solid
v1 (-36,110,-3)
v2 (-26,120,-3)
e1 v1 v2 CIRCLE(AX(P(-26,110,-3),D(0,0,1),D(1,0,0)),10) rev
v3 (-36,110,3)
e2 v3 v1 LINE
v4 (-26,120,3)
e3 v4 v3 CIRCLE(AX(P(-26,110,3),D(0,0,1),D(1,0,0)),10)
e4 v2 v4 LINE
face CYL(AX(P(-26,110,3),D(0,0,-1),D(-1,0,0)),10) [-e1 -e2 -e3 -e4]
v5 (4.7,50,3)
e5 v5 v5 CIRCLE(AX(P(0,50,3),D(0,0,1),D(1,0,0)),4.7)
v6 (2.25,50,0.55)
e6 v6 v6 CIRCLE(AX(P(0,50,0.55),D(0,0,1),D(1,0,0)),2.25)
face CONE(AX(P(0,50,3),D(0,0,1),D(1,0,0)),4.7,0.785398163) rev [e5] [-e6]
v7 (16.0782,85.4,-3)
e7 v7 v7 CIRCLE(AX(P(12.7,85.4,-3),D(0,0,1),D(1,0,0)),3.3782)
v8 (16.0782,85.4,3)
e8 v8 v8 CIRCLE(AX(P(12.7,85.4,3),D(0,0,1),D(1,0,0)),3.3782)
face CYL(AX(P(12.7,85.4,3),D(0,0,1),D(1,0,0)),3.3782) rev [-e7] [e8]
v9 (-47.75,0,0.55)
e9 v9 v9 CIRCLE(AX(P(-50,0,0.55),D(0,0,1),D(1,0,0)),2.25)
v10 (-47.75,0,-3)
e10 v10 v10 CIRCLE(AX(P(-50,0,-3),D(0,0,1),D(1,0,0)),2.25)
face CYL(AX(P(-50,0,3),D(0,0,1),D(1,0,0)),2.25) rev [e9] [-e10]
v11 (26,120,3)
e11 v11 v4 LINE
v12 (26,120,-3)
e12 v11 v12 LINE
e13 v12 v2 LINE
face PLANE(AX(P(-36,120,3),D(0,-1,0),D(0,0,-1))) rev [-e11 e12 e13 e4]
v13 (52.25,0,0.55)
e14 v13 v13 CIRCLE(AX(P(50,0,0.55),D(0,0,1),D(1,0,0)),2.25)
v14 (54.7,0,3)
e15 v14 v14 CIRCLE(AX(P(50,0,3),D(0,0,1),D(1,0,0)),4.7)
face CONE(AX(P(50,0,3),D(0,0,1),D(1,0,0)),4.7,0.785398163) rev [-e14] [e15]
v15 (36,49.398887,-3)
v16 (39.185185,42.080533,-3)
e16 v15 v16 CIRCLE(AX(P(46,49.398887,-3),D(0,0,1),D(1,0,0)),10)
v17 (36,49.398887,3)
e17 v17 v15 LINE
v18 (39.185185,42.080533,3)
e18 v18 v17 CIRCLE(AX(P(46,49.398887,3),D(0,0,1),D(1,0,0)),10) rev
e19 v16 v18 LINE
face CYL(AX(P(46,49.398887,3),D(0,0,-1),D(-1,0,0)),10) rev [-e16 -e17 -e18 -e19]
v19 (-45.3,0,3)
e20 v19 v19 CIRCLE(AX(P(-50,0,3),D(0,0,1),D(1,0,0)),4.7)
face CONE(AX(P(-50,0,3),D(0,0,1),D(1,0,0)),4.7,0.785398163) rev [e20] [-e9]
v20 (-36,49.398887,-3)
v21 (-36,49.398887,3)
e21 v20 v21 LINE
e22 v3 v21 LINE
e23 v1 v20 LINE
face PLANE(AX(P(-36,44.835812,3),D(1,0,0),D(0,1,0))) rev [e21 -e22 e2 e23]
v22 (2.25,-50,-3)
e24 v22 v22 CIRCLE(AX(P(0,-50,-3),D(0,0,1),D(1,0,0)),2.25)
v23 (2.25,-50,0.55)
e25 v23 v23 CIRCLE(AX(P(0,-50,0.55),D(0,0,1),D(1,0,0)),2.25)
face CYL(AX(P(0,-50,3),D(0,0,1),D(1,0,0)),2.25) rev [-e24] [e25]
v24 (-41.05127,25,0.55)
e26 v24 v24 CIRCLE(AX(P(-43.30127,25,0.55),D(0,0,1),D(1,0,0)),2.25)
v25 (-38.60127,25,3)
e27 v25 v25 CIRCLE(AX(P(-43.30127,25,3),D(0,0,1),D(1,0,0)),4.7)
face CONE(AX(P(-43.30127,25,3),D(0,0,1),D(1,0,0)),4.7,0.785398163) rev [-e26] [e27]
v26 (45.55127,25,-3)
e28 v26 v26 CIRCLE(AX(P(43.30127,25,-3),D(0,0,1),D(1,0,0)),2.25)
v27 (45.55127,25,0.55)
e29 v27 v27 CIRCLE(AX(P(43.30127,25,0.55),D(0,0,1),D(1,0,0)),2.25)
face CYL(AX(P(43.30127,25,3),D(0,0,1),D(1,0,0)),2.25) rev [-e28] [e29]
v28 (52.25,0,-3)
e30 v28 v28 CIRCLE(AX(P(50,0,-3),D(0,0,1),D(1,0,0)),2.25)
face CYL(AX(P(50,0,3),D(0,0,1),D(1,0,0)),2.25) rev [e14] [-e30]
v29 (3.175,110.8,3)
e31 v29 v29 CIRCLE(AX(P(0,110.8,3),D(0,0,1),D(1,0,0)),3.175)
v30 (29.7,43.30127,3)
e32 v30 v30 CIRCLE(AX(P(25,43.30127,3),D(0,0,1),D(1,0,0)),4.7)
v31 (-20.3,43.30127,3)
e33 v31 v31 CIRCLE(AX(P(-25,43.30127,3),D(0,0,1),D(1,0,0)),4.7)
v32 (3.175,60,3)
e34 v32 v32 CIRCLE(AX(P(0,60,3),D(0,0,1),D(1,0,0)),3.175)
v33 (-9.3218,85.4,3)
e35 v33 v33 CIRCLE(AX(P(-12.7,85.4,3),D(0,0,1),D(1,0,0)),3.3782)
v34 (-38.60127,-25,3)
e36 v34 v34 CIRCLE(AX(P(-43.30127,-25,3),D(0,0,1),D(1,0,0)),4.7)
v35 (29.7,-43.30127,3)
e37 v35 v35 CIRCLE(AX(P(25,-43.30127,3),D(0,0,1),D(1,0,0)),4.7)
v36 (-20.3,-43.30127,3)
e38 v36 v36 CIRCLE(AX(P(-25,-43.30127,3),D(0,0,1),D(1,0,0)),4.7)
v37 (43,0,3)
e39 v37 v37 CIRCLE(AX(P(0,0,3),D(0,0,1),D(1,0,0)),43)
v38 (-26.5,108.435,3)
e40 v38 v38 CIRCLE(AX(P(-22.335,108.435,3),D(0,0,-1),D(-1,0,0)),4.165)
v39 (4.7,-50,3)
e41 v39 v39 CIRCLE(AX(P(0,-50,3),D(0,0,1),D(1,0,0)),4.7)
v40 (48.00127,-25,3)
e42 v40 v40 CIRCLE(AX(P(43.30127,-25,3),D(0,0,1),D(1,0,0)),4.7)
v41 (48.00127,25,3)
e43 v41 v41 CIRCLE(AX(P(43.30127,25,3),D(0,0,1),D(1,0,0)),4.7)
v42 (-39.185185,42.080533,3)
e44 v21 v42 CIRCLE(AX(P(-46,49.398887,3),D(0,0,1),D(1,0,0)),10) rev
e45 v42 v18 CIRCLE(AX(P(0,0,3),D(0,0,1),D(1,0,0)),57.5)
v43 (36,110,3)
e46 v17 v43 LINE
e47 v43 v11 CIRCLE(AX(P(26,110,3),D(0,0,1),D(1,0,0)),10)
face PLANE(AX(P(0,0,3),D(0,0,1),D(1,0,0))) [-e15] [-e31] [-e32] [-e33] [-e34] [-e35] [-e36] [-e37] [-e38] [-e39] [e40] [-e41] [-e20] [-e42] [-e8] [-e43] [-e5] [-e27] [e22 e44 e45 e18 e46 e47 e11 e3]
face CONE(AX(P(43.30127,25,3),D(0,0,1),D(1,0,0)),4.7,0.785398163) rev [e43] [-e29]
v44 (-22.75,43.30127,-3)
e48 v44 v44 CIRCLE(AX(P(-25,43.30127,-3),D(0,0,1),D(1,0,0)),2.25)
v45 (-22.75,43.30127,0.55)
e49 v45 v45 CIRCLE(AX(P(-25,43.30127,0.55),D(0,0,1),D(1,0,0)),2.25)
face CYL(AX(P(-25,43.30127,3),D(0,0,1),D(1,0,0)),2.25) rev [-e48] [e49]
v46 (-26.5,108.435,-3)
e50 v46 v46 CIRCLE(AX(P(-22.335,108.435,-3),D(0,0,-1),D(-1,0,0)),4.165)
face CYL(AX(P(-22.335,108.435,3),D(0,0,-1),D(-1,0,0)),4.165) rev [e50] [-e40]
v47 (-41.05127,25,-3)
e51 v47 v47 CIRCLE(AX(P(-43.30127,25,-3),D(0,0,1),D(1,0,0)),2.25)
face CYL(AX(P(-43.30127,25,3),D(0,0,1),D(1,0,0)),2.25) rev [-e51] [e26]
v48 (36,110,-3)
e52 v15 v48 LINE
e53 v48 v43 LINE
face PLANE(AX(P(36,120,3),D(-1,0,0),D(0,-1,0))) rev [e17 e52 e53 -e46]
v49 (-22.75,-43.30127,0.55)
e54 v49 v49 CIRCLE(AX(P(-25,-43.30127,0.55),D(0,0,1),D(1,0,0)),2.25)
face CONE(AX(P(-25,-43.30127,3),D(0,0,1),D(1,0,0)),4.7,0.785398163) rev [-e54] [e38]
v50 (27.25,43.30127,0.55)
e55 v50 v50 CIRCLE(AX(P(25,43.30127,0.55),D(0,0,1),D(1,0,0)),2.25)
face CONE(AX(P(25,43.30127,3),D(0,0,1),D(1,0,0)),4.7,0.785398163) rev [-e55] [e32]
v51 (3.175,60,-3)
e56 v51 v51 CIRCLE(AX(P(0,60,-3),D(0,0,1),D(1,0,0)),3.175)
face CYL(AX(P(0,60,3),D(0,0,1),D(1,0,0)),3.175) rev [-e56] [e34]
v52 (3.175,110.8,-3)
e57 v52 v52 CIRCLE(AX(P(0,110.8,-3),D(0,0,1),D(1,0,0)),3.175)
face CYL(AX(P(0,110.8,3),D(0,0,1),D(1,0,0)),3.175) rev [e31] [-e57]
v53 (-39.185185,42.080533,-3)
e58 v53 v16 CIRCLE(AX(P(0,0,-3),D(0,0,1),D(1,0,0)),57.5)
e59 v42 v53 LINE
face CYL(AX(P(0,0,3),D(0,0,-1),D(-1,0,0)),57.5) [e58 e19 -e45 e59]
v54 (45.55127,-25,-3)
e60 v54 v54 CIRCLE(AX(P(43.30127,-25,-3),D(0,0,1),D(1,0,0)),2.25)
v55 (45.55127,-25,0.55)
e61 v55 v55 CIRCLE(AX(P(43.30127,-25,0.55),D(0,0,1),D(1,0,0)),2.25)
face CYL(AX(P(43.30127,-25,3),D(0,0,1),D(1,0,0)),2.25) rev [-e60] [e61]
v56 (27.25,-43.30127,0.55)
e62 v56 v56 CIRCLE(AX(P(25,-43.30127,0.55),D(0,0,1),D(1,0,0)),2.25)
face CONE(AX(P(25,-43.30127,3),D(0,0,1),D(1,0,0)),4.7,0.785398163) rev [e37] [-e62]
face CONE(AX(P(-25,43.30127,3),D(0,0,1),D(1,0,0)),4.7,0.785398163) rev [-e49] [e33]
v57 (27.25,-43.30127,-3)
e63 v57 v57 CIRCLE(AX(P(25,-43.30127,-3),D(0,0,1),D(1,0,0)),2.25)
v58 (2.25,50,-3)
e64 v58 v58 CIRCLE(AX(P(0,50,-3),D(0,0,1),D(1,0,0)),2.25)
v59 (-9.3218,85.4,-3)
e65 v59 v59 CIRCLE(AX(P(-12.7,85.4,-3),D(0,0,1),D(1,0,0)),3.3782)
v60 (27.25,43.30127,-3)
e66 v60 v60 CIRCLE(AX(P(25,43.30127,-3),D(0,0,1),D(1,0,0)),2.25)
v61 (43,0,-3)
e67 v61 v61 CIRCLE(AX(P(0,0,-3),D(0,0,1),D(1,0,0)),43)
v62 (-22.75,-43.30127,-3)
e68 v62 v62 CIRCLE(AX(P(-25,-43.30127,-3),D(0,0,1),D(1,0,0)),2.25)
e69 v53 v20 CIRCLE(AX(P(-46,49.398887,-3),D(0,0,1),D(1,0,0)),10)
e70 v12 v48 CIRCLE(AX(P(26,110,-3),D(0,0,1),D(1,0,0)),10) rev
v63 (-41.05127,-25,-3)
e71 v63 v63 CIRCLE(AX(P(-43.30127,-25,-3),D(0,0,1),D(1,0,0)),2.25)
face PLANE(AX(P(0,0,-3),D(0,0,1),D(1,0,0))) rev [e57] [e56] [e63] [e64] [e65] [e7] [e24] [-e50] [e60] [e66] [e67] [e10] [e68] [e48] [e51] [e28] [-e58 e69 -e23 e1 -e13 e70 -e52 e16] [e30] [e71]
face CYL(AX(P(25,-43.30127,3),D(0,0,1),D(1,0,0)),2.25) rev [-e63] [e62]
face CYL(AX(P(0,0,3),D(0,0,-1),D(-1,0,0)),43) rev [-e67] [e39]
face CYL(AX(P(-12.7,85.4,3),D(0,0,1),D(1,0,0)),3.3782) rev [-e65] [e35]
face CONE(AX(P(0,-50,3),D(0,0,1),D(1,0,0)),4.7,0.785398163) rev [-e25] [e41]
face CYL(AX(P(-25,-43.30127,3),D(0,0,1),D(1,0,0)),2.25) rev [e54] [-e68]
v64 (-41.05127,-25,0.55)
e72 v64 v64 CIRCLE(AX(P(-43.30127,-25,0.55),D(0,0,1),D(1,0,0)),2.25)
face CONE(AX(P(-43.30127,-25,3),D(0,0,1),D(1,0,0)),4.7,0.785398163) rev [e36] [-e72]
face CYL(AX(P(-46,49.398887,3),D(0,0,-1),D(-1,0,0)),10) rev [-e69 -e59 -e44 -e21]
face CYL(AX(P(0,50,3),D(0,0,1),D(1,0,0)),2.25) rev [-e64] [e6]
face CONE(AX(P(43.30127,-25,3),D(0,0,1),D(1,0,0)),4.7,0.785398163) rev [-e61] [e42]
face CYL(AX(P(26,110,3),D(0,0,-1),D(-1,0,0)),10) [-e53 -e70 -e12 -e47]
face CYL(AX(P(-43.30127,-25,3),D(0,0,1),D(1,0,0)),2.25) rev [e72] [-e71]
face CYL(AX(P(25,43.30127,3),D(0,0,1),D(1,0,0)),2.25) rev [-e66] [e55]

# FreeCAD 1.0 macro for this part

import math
import FreeCAD as App
import Part
import Sketcher


def edges_at(feature, points):
    """Names of the edges that pass closest to the given points."""
    edges = feature.Shape.Edges
    near = lambda p: min(range(len(edges)), key=lambda i: edges[i].distToShape(Part.Vertex(*p))[0])
    return sorted({f"Edge{near(p) + 1}" for p in points})

doc = App.newDocument("Part")
body = doc.addObject("PartDesign::Body", "Body")

# Sketch on XY plane
sketch1 = body.newObject("Sketcher::SketchObject", "Sketch")
sketch1.AttachmentSupport = (doc.getObject("XY_Plane"), [""])
sketch1.MapMode = "FlatFace"
sketch1.addGeometry(Part.LineSegment(App.Vector(-36, 120, 0), App.Vector(-36, 44.835812, 0)), False)
sketch1.addGeometry(Part.ArcOfCircle(Part.Circle(App.Vector(0, 0, 0), App.Vector(0, 0, 1), 57.5), math.radians(128.762012), math.radians(411.237988)), False)
sketch1.addGeometry(Part.LineSegment(App.Vector(36, 44.835812, 0), App.Vector(36, 120, 0)), False)
sketch1.addGeometry(Part.LineSegment(App.Vector(36, 120, 0), App.Vector(-36, 120, 0)), False)
sketch1.addGeometry(Part.Circle(App.Vector(0, 0, 0), App.Vector(0, 0, 1), 43), False)
sketch1.addConstraint(Sketcher.Constraint("Coincident", 0, 2, 1, 1))
sketch1.addConstraint(Sketcher.Constraint("Coincident", 1, 2, 2, 1))
sketch1.addConstraint(Sketcher.Constraint("Coincident", 2, 2, 3, 1))
sketch1.addConstraint(Sketcher.Constraint("Coincident", 3, 2, 0, 1))
sketch1.addConstraint(Sketcher.Constraint("Vertical", 0))
sketch1.addConstraint(Sketcher.Constraint("Vertical", 2))
sketch1.addConstraint(Sketcher.Constraint("Horizontal", 3))
sketch1.addConstraint(Sketcher.Constraint("Coincident", 1, 3, -1, 1))
sketch1.addConstraint(Sketcher.Constraint("Coincident", 4, 3, -1, 1))
sketch1.addConstraint(Sketcher.Constraint("Horizontal", 0, 2, 1, 2))
sketch1.addConstraint(Sketcher.Constraint("Diameter", 4, 86.0))
sketch1.addConstraint(Sketcher.Constraint("Radius", 1, 57.5))
sketch1.addConstraint(Sketcher.Constraint("DistanceX", 3, 2, 3, 1, 72.0))
sketch1.addConstraint(Sketcher.Constraint("DistanceY", -1, 1, 2, 2, 120.0))
pad1 = body.newObject("PartDesign::Pad", "Pad")
pad1.Profile = sketch1
pad1.Length = 6
pad1.Midplane = True

# Sketch on XY plane
sketch2 = body.newObject("Sketcher::SketchObject", "Sketch001")
sketch2.AttachmentSupport = (doc.getObject("XY_Plane"), [""])
sketch2.MapMode = "FlatFace"
sketch2.AttachmentOffset = App.Placement(App.Vector(0, 0, 3), App.Rotation())
sketch2.addGeometry(Part.Circle(App.Vector(0, 50, 0), App.Vector(0, 0, 1), 2.25), False)
sketch2.addGeometry(Part.Circle(App.Vector(25, 43.30127, 0), App.Vector(0, 0, 1), 2.25), False)
sketch2.addGeometry(Part.Circle(App.Vector(43.30127, 25, 0), App.Vector(0, 0, 1), 2.25), False)
sketch2.addGeometry(Part.Circle(App.Vector(50, 0, 0), App.Vector(0, 0, 1), 2.25), False)
sketch2.addGeometry(Part.Circle(App.Vector(43.30127, -25, 0), App.Vector(0, 0, 1), 2.25), False)
sketch2.addGeometry(Part.Circle(App.Vector(25, -43.30127, 0), App.Vector(0, 0, 1), 2.25), False)
sketch2.addGeometry(Part.Circle(App.Vector(0, -50, 0), App.Vector(0, 0, 1), 2.25), False)
sketch2.addGeometry(Part.Circle(App.Vector(-25, -43.30127, 0), App.Vector(0, 0, 1), 2.25), False)
sketch2.addGeometry(Part.Circle(App.Vector(-43.30127, -25, 0), App.Vector(0, 0, 1), 2.25), False)
sketch2.addGeometry(Part.Circle(App.Vector(-50, 0, 0), App.Vector(0, 0, 1), 2.25), False)
sketch2.addGeometry(Part.Circle(App.Vector(-43.30127, 25, 0), App.Vector(0, 0, 1), 2.25), False)
sketch2.addGeometry(Part.Circle(App.Vector(-25, 43.30127, 0), App.Vector(0, 0, 1), 2.25), False)
sketch2.addConstraint(Sketcher.Constraint("Equal", 0, 1))
sketch2.addConstraint(Sketcher.Constraint("Equal", 1, 2))
sketch2.addConstraint(Sketcher.Constraint("Equal", 2, 3))
sketch2.addConstraint(Sketcher.Constraint("Equal", 3, 4))
sketch2.addConstraint(Sketcher.Constraint("Equal", 4, 5))
sketch2.addConstraint(Sketcher.Constraint("Equal", 5, 6))
sketch2.addConstraint(Sketcher.Constraint("Equal", 6, 7))
sketch2.addConstraint(Sketcher.Constraint("Equal", 7, 8))
sketch2.addConstraint(Sketcher.Constraint("Equal", 8, 9))
sketch2.addConstraint(Sketcher.Constraint("Equal", 9, 10))
sketch2.addConstraint(Sketcher.Constraint("Equal", 10, 11))
sketch2.addConstraint(Sketcher.Constraint("Symmetric", 0, 3, 6, 3, -1, 1))
sketch2.addConstraint(Sketcher.Constraint("Symmetric", 1, 3, 7, 3, -1, 1))
sketch2.addConstraint(Sketcher.Constraint("Symmetric", 2, 3, 8, 3, -1, 1))
sketch2.addConstraint(Sketcher.Constraint("Symmetric", 3, 3, 9, 3, -1, 1))
sketch2.addConstraint(Sketcher.Constraint("Symmetric", 4, 3, 10, 3, -1, 1))
sketch2.addConstraint(Sketcher.Constraint("Symmetric", 5, 3, 11, 3, -1, 1))
sketch2.addConstraint(Sketcher.Constraint("Symmetric", 5, 3, 7, 3, -2))
sketch2.addConstraint(Sketcher.Constraint("Symmetric", 4, 3, 8, 3, -2))
sketch2.addConstraint(Sketcher.Constraint("PointOnObject", 0, 3, -2))
sketch2.addConstraint(Sketcher.Constraint("PointOnObject", 3, 3, -1))
sketch2.addConstraint(Sketcher.Constraint("Diameter", 0, 4.5))
sketch2.addConstraint(Sketcher.Constraint("DistanceY", -1, 1, 0, 3, 50.0))
sketch2.addConstraint(Sketcher.Constraint("DistanceX", -1, 1, 1, 3, 25.0))
sketch2.addConstraint(Sketcher.Constraint("DistanceY", -1, 1, 2, 3, 25.0))
sketch2.addConstraint(Sketcher.Constraint("DistanceX", -1, 1, 3, 3, 50.0))
sketch2.addConstraint(Sketcher.Constraint("DistanceY", -1, 1, 1, 3, 43.30127))
sketch2.addConstraint(Sketcher.Constraint("DistanceX", -1, 1, 2, 3, 43.30127))
doc.recompute()
hole = body.newObject("PartDesign::Hole", "Hole")
hole.Profile = sketch2
hole.ThreadType = "None"
hole.Diameter = 4.5
hole.DepthType = "ThroughAll"

# Sketch on XY plane
sketch3 = body.newObject("Sketcher::SketchObject", "Sketch002")
sketch3.AttachmentSupport = (doc.getObject("XY_Plane"), [""])
sketch3.MapMode = "FlatFace"
sketch3.AttachmentOffset = App.Placement(App.Vector(0, 0, 3), App.Rotation())
sketch3.addGeometry(Part.Circle(App.Vector(0, 60, 0), App.Vector(0, 0, 1), 3.175), False)
sketch3.addGeometry(Part.Circle(App.Vector(0, 110.8, 0), App.Vector(0, 0, 1), 3.175), False)
sketch3.addConstraint(Sketcher.Constraint("Equal", 0, 1))
sketch3.addConstraint(Sketcher.Constraint("PointOnObject", 0, 3, -2))
sketch3.addConstraint(Sketcher.Constraint("PointOnObject", 1, 3, -2))
sketch3.addConstraint(Sketcher.Constraint("Diameter", 0, 6.35))
sketch3.addConstraint(Sketcher.Constraint("DistanceY", -1, 1, 0, 3, 60.0))
sketch3.addConstraint(Sketcher.Constraint("DistanceY", -1, 1, 1, 3, 110.8))
doc.recompute()
hole2 = body.newObject("PartDesign::Hole", "Hole001")
hole2.Profile = sketch3
hole2.ThreadType = "None"
hole2.Diameter = 6.35
hole2.DepthType = "ThroughAll"

# Sketch on XY plane
sketch4 = body.newObject("Sketcher::SketchObject", "Sketch003")
sketch4.AttachmentSupport = (doc.getObject("XY_Plane"), [""])
sketch4.MapMode = "FlatFace"
sketch4.AttachmentOffset = App.Placement(App.Vector(0, 0, 3), App.Rotation())
sketch4.addGeometry(Part.Circle(App.Vector(-12.7, 85.4, 0), App.Vector(0, 0, 1), 3.3782), False)
sketch4.addGeometry(Part.Circle(App.Vector(12.7, 85.4, 0), App.Vector(0, 0, 1), 3.3782), False)
sketch4.addConstraint(Sketcher.Constraint("Equal", 0, 1))
sketch4.addConstraint(Sketcher.Constraint("Symmetric", 0, 3, 1, 3, -2))
sketch4.addConstraint(Sketcher.Constraint("Diameter", 0, 6.7564))
sketch4.addConstraint(Sketcher.Constraint("DistanceX", 0, 3, -1, 1, 12.7))
sketch4.addConstraint(Sketcher.Constraint("DistanceY", -1, 1, 0, 3, 85.4))
doc.recompute()
hole3 = body.newObject("PartDesign::Hole", "Hole002")
hole3.Profile = sketch4
hole3.ThreadType = "None"
hole3.Diameter = 6.7564
hole3.DepthType = "ThroughAll"
doc.recompute()

fillet = body.newObject("PartDesign::Fillet", "Fillet")
fillet.Base = (hole3, edges_at(hole3, [
    (-36, 44.836, 0),
    (-36, 120, 0),
    (36, 120, 0),
    (36, 44.836, 0),
]))
fillet.Radius = 10

# Sketch on XY plane
sketch5 = body.newObject("Sketcher::SketchObject", "Sketch004")
sketch5.AttachmentSupport = (doc.getObject("XY_Plane"), [""])
sketch5.MapMode = "FlatFace"
sketch5.AttachmentOffset = App.Placement(App.Vector(0, 0, 3), App.Rotation())
sketch5.addGeometry(Part.Circle(App.Vector(0, 50, 0), App.Vector(0, 0, 1), 2.25), False)
sketch5.addGeometry(Part.Circle(App.Vector(25, 43.30127, 0), App.Vector(0, 0, 1), 2.25), False)
sketch5.addGeometry(Part.Circle(App.Vector(43.30127, 25, 0), App.Vector(0, 0, 1), 2.25), False)
sketch5.addGeometry(Part.Circle(App.Vector(50, 0, 0), App.Vector(0, 0, 1), 2.25), False)
sketch5.addGeometry(Part.Circle(App.Vector(43.30127, -25, 0), App.Vector(0, 0, 1), 2.25), False)
sketch5.addGeometry(Part.Circle(App.Vector(25, -43.30127, 0), App.Vector(0, 0, 1), 2.25), False)
sketch5.addGeometry(Part.Circle(App.Vector(0, -50, 0), App.Vector(0, 0, 1), 2.25), False)
sketch5.addGeometry(Part.Circle(App.Vector(-25, -43.30127, 0), App.Vector(0, 0, 1), 2.25), False)
sketch5.addGeometry(Part.Circle(App.Vector(-43.30127, -25, 0), App.Vector(0, 0, 1), 2.25), False)
sketch5.addGeometry(Part.Circle(App.Vector(-50, 0, 0), App.Vector(0, 0, 1), 2.25), False)
sketch5.addGeometry(Part.Circle(App.Vector(-43.30127, 25, 0), App.Vector(0, 0, 1), 2.25), False)
sketch5.addGeometry(Part.Circle(App.Vector(-25, 43.30127, 0), App.Vector(0, 0, 1), 2.25), False)
sketch5.addConstraint(Sketcher.Constraint("Equal", 0, 1))
sketch5.addConstraint(Sketcher.Constraint("Equal", 1, 2))
sketch5.addConstraint(Sketcher.Constraint("Equal", 2, 3))
sketch5.addConstraint(Sketcher.Constraint("Equal", 3, 4))
sketch5.addConstraint(Sketcher.Constraint("Equal", 4, 5))
sketch5.addConstraint(Sketcher.Constraint("Equal", 5, 6))
sketch5.addConstraint(Sketcher.Constraint("Equal", 6, 7))
sketch5.addConstraint(Sketcher.Constraint("Equal", 7, 8))
sketch5.addConstraint(Sketcher.Constraint("Equal", 8, 9))
sketch5.addConstraint(Sketcher.Constraint("Equal", 9, 10))
sketch5.addConstraint(Sketcher.Constraint("Equal", 10, 11))
sketch5.addConstraint(Sketcher.Constraint("Symmetric", 0, 3, 6, 3, -1, 1))
sketch5.addConstraint(Sketcher.Constraint("Symmetric", 1, 3, 7, 3, -1, 1))
sketch5.addConstraint(Sketcher.Constraint("Symmetric", 2, 3, 8, 3, -1, 1))
sketch5.addConstraint(Sketcher.Constraint("Symmetric", 3, 3, 9, 3, -1, 1))
sketch5.addConstraint(Sketcher.Constraint("Symmetric", 4, 3, 10, 3, -1, 1))
sketch5.addConstraint(Sketcher.Constraint("Symmetric", 5, 3, 11, 3, -1, 1))
sketch5.addConstraint(Sketcher.Constraint("Symmetric", 5, 3, 7, 3, -2))
sketch5.addConstraint(Sketcher.Constraint("Symmetric", 4, 3, 8, 3, -2))
sketch5.addConstraint(Sketcher.Constraint("PointOnObject", 0, 3, -2))
sketch5.addConstraint(Sketcher.Constraint("PointOnObject", 3, 3, -1))
sketch5.addConstraint(Sketcher.Constraint("Diameter", 0, 4.5))
sketch5.addConstraint(Sketcher.Constraint("DistanceY", -1, 1, 0, 3, 50.0))
sketch5.addConstraint(Sketcher.Constraint("DistanceX", -1, 1, 1, 3, 25.0))
sketch5.addConstraint(Sketcher.Constraint("DistanceY", -1, 1, 2, 3, 25.0))
sketch5.addConstraint(Sketcher.Constraint("DistanceX", -1, 1, 3, 3, 50.0))
sketch5.addConstraint(Sketcher.Constraint("DistanceY", -1, 1, 1, 3, 43.30127))
sketch5.addConstraint(Sketcher.Constraint("DistanceX", -1, 1, 2, 3, 43.30127))
doc.recompute()
hole4 = body.newObject("PartDesign::Hole", "Hole003")
hole4.Profile = sketch5
hole4.ThreadType = "None"
hole4.Diameter = 4.5
hole4.DepthType = "ThroughAll"
hole4.HoleCutType = "Countersink"
hole4.HoleCutDiameter = 9.4
hole4.HoleCutCountersinkAngle = 90

# Sketch on XY plane
sketch6 = body.newObject("Sketcher::SketchObject", "Sketch005")
sketch6.AttachmentSupport = (doc.getObject("XY_Plane"), [""])
sketch6.MapMode = "FlatFace"
sketch6.AttachmentOffset = App.Placement(App.Vector(0, 0, -3), App.Rotation())
sketch6.addGeometry(Part.Circle(App.Vector(-22.335, 108.435, 0), App.Vector(0, 0, 1), 4.165), False)
sketch6.addConstraint(Sketcher.Constraint("Diameter", 0, 8.33))
sketch6.addConstraint(Sketcher.Constraint("DistanceX", 0, 3, -1, 1, 22.335))
sketch6.addConstraint(Sketcher.Constraint("DistanceY", -1, 1, 0, 3, 108.435))
pocket1 = body.newObject("PartDesign::Pocket", "Pocket")
pocket1.Profile = sketch6
pocket1.Type = "ThroughAll"
pocket1.Reversed = True

doc.recompute()
